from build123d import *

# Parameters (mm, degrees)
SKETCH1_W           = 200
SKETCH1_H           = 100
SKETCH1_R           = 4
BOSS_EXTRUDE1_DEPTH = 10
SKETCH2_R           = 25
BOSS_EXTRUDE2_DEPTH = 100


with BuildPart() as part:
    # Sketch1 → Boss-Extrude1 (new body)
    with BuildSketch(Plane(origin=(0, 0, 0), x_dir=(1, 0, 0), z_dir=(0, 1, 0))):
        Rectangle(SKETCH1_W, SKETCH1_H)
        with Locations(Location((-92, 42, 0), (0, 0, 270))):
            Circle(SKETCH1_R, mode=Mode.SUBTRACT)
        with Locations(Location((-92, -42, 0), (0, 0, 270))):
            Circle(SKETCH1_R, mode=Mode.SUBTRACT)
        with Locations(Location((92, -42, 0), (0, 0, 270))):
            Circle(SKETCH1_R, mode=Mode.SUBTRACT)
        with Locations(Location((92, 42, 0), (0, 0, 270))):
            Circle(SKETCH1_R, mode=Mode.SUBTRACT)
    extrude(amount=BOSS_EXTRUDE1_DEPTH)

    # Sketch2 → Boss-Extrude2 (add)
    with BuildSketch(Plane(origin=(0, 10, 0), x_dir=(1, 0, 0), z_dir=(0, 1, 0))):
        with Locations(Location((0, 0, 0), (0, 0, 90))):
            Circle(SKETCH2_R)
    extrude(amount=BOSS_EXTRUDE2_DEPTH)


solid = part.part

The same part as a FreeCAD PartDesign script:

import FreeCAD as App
import Part
import Sketcher

V = App.Vector


def add_polygon(sketch, points):
    """Adds a closed chain of lines whose ends are joined by coincident constraints."""
    first, n = sketch.GeometryCount, len(points)
    for a, b in zip(points, points[1:] + points[:1]):
        sketch.addGeometry(Part.LineSegment(App.Vector(*a, 0), App.Vector(*b, 0)), False)
    for i in range(n):
        sketch.addConstraint(Sketcher.Constraint("Coincident", first + i, 2, first + (i + 1) % n, 1))

doc = App.newDocument("Part")
body = doc.addObject("PartDesign::Body", "Body")

# Sketch on XZ plane
sketch1 = body.newObject("Sketcher::SketchObject", "Sketch")
sketch1.AttachmentSupport = (doc.getObject("XZ_Plane"), [""])
sketch1.MapMode = "FlatFace"
add_polygon(sketch1, [(-100, -50), (-100, 50), (100, 50), (100, -50)])  # lines 0-3
sketch1.addGeometry(Part.Circle(V(-92, 42, 0), V(0, 0, 1), 4), False)  # 4
sketch1.addGeometry(Part.Circle(V(92, 42, 0), V(0, 0, 1), 4), False)  # 5
sketch1.addGeometry(Part.Circle(V(-92, -42, 0), V(0, 0, 1), 4), False)  # 6
sketch1.addGeometry(Part.Circle(V(92, -42, 0), V(0, 0, 1), 4), False)  # 7
sketch1.addConstraint(Sketcher.Constraint("Vertical", 0))
sketch1.addConstraint(Sketcher.Constraint("Horizontal", 1))
sketch1.addConstraint(Sketcher.Constraint("Vertical", 2))
sketch1.addConstraint(Sketcher.Constraint("Horizontal", 3))
sketch1.addConstraint(Sketcher.Constraint("Equal", 4, 5))
sketch1.addConstraint(Sketcher.Constraint("Equal", 5, 6))
sketch1.addConstraint(Sketcher.Constraint("Equal", 6, 7))
sketch1.addConstraint(Sketcher.Constraint("Symmetric", 5, 3, 6, 3, -1, 1))
sketch1.addConstraint(Sketcher.Constraint("Symmetric", 4, 3, 7, 3, -1, 1))
sketch1.addConstraint(Sketcher.Constraint("Symmetric", 0, 2, 2, 2, -1, 1))
sketch1.addConstraint(Sketcher.Constraint("Symmetric", 4, 3, 5, 3, -2))
sketch1.addConstraint(Sketcher.Constraint("Diameter", 4, 8.0))
sketch1.addConstraint(Sketcher.Constraint("DistanceX", 1, 1, 1, 2, 200.0))
sketch1.addConstraint(Sketcher.Constraint("DistanceY", 0, 1, 0, 2, 100.0))
sketch1.addConstraint(Sketcher.Constraint("DistanceX", 4, 3, -1, 1, 92.0))
sketch1.addConstraint(Sketcher.Constraint("DistanceY", -1, 1, 4, 3, 42.0))
pad1 = body.newObject("PartDesign::Pad", "Pad")
pad1.Profile = sketch1
pad1.Length = 10
pad1.Reversed = True

# Sketch on XZ plane
sketch2 = body.newObject("Sketcher::SketchObject", "Sketch001")
sketch2.AttachmentSupport = (doc.getObject("XZ_Plane"), [""])
sketch2.MapMode = "FlatFace"
sketch2.AttachmentOffset = App.Placement(V(0, 0, -10), App.Rotation())
sketch2.addGeometry(Part.Circle(V(0, 0, 0), V(0, 0, 1), 25), False)
sketch2.addConstraint(Sketcher.Constraint("Coincident", 0, 3, -1, 1))
sketch2.addConstraint(Sketcher.Constraint("Diameter", 0, 50.0))
pad2 = body.newObject("PartDesign::Pad", "Pad001")
pad2.Profile = sketch2
pad2.Length = 100
pad2.Reversed = True

doc.recompute()
